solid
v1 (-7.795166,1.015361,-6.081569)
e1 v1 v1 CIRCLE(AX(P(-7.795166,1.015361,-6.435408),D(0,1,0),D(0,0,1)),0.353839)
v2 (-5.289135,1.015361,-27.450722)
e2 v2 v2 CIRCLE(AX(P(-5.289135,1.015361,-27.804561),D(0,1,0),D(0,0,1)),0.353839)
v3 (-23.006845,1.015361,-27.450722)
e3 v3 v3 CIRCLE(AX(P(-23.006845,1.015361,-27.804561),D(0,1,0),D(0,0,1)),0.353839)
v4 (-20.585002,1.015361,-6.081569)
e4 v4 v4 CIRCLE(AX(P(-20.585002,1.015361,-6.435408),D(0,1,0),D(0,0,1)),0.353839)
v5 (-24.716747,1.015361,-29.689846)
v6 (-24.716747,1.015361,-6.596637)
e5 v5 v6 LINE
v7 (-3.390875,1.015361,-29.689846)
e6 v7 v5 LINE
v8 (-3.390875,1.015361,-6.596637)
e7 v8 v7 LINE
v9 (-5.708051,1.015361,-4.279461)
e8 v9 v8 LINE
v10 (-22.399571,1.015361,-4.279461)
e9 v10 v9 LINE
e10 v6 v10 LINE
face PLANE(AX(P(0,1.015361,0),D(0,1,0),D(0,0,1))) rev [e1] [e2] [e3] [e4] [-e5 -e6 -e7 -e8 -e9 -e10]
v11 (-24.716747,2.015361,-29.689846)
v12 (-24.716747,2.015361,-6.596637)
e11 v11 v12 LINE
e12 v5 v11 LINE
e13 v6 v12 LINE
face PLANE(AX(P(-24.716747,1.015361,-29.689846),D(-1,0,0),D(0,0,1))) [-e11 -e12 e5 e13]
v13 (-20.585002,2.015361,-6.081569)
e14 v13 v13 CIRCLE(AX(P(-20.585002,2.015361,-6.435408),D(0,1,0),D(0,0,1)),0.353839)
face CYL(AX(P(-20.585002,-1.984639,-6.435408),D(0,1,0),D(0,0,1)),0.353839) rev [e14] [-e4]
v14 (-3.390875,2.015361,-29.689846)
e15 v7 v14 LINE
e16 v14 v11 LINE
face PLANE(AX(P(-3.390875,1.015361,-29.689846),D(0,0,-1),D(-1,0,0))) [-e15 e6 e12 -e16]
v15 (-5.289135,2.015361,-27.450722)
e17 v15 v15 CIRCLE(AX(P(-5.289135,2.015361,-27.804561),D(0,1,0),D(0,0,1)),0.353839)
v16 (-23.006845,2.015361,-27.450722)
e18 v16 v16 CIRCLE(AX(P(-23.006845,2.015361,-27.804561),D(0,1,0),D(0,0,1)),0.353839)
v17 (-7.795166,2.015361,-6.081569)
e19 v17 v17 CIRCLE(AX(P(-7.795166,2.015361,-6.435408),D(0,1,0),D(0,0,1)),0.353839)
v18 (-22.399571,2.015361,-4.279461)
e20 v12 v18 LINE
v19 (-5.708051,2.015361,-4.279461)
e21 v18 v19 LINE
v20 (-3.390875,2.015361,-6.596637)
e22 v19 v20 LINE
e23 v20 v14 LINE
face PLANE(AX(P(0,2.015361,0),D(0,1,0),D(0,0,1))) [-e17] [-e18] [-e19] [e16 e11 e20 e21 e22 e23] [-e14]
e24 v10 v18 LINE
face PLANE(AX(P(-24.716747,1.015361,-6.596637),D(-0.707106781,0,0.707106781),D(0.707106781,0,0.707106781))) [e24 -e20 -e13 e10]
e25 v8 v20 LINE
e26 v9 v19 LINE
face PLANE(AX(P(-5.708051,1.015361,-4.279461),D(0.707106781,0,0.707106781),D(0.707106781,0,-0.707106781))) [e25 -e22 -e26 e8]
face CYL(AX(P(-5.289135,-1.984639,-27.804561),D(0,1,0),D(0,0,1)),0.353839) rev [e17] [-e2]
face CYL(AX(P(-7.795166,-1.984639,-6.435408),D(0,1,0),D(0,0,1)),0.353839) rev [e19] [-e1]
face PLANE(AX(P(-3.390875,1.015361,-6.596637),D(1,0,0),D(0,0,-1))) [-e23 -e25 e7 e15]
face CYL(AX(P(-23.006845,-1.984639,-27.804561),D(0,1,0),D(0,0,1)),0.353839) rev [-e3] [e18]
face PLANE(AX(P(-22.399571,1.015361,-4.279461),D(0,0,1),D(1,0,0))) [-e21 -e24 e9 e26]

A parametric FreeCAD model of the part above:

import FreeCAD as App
import Part
import Sketcher
Q = App.Units.Quantity


def add_polygon(sketch, points):
    """Adds a closed chain of lines whose ends are joined by coincident constraints."""
    first, n = sketch.GeometryCount, len(points)
    for a, b in zip(points, points[1:] + points[:1]):
        sketch.addGeometry(Part.LineSegment(App.Vector(*a, 0), App.Vector(*b, 0)), False)
    for i in range(n):
        sketch.addConstraint(Sketcher.Constraint("Coincident", first + i, 2, first + (i + 1) % n, 1))

doc = App.newDocument("Part")
body = doc.addObject("PartDesign::Body", "Body")

# Sketch on XZ plane
sketch1 = body.newObject("Sketcher::SketchObject", "Sketch")
sketch1.AttachmentSupport = (doc.getObject("XZ_Plane"), [""])
sketch1.MapMode = "FlatFace"
sketch1.AttachmentOffset = App.Placement(App.Vector(0, 0, -2.015361), App.Rotation())
add_polygon(sketch1, [(-24.716747, -29.689846), (-24.716747, -6.596637), (-22.399571, -4.279461), (-5.708051, -4.279461), (-3.390875, -6.596637), (-3.390875, -29.689846)])  # lines 0-5
sketch1.addConstraint(Sketcher.Constraint("Vertical", 0))
sketch1.addConstraint(Sketcher.Constraint("Horizontal", 2))
sketch1.addConstraint(Sketcher.Constraint("Vertical", 4))
sketch1.addConstraint(Sketcher.Constraint("Horizontal", 5))
sketch1.addConstraint(Sketcher.Constraint("Perpendicular", 1, 3))
sketch1.addConstraint(Sketcher.Constraint("Horizontal", 0, 2, 3, 2))
sketch1.addConstraint(Sketcher.Constraint("Equal", 1, 3))
sketch1.addConstraint(Sketcher.Constraint("DistanceX", 2, 1, 2, 2, Q("16.69152 mm")))
sketch1.addConstraint(Sketcher.Constraint("DistanceX", 5, 2, 5, 1, Q("21.325871 mm")))
sketch1.addConstraint(Sketcher.Constraint("DistanceY", 0, 1, 0, 2, Q("23.093209 mm")))
sketch1.addConstraint(Sketcher.Constraint("DistanceX", 1, 2, -1, 1, Q("22.399571 mm")))
sketch1.addConstraint(Sketcher.Constraint("DistanceY", 1, 2, -1, 1, Q("4.279461 mm")))
pad1 = body.newObject("PartDesign::Pad", "Pad")
pad1.Profile = sketch1
pad1.Length = 1

# Sketch on XZ plane
sketch2 = body.newObject("Sketcher::SketchObject", "Sketch001")
sketch2.AttachmentSupport = (doc.getObject("XZ_Plane"), [""])
sketch2.MapMode = "FlatFace"
sketch2.AttachmentOffset = App.Placement(App.Vector(0, 0, -2.015361), App.Rotation())
sketch2.addGeometry(Part.Circle(App.Vector(-23.006845, -27.804561, 0), App.Vector(0, 0, 1), 0.353839), False)
sketch2.addGeometry(Part.Circle(App.Vector(-5.289135, -27.804561, 0), App.Vector(0, 0, 1), 0.353839), False)
sketch2.addGeometry(Part.Circle(App.Vector(-20.585002, -6.435408, 0), App.Vector(0, 0, 1), 0.353839), False)
sketch2.addGeometry(Part.Circle(App.Vector(-7.795166, -6.435408, 0), App.Vector(0, 0, 1), 0.353839), False)
sketch2.addConstraint(Sketcher.Constraint("Equal", 0, 1))
sketch2.addConstraint(Sketcher.Constraint("Equal", 1, 2))
sketch2.addConstraint(Sketcher.Constraint("Equal", 2, 3))
sketch2.addConstraint(Sketcher.Constraint("Horizontal", 0, 3, 1, 3))
sketch2.addConstraint(Sketcher.Constraint("Horizontal", 2, 3, 3, 3))
sketch2.addConstraint(Sketcher.Constraint("Diameter", 0, Q("0.707678 mm")))
sketch2.addConstraint(Sketcher.Constraint("DistanceX", 2, 3, -1, 1, Q("20.585002 mm")))
sketch2.addConstraint(Sketcher.Constraint("DistanceY", 0, 3, -1, 1, Q("27.804561 mm")))
sketch2.addConstraint(Sketcher.Constraint("DistanceY", 2, 3, -1, 1, Q("6.435408 mm")))
sketch2.addConstraint(Sketcher.Constraint("DistanceX", 0, 3, 1, 3, Q("17.717711 mm")))
sketch2.addConstraint(Sketcher.Constraint("DistanceX", 3, 3, 1, 3, Q("2.506031 mm")))
sketch2.addConstraint(Sketcher.Constraint("DistanceX", 0, 3, -1, 1, Q("23.006845 mm")))
pocket1 = body.newObject("PartDesign::Pocket", "Pocket")
pocket1.Profile = sketch2
pocket1.Length = 4
pocket1.Reversed = True

doc.recompute()
